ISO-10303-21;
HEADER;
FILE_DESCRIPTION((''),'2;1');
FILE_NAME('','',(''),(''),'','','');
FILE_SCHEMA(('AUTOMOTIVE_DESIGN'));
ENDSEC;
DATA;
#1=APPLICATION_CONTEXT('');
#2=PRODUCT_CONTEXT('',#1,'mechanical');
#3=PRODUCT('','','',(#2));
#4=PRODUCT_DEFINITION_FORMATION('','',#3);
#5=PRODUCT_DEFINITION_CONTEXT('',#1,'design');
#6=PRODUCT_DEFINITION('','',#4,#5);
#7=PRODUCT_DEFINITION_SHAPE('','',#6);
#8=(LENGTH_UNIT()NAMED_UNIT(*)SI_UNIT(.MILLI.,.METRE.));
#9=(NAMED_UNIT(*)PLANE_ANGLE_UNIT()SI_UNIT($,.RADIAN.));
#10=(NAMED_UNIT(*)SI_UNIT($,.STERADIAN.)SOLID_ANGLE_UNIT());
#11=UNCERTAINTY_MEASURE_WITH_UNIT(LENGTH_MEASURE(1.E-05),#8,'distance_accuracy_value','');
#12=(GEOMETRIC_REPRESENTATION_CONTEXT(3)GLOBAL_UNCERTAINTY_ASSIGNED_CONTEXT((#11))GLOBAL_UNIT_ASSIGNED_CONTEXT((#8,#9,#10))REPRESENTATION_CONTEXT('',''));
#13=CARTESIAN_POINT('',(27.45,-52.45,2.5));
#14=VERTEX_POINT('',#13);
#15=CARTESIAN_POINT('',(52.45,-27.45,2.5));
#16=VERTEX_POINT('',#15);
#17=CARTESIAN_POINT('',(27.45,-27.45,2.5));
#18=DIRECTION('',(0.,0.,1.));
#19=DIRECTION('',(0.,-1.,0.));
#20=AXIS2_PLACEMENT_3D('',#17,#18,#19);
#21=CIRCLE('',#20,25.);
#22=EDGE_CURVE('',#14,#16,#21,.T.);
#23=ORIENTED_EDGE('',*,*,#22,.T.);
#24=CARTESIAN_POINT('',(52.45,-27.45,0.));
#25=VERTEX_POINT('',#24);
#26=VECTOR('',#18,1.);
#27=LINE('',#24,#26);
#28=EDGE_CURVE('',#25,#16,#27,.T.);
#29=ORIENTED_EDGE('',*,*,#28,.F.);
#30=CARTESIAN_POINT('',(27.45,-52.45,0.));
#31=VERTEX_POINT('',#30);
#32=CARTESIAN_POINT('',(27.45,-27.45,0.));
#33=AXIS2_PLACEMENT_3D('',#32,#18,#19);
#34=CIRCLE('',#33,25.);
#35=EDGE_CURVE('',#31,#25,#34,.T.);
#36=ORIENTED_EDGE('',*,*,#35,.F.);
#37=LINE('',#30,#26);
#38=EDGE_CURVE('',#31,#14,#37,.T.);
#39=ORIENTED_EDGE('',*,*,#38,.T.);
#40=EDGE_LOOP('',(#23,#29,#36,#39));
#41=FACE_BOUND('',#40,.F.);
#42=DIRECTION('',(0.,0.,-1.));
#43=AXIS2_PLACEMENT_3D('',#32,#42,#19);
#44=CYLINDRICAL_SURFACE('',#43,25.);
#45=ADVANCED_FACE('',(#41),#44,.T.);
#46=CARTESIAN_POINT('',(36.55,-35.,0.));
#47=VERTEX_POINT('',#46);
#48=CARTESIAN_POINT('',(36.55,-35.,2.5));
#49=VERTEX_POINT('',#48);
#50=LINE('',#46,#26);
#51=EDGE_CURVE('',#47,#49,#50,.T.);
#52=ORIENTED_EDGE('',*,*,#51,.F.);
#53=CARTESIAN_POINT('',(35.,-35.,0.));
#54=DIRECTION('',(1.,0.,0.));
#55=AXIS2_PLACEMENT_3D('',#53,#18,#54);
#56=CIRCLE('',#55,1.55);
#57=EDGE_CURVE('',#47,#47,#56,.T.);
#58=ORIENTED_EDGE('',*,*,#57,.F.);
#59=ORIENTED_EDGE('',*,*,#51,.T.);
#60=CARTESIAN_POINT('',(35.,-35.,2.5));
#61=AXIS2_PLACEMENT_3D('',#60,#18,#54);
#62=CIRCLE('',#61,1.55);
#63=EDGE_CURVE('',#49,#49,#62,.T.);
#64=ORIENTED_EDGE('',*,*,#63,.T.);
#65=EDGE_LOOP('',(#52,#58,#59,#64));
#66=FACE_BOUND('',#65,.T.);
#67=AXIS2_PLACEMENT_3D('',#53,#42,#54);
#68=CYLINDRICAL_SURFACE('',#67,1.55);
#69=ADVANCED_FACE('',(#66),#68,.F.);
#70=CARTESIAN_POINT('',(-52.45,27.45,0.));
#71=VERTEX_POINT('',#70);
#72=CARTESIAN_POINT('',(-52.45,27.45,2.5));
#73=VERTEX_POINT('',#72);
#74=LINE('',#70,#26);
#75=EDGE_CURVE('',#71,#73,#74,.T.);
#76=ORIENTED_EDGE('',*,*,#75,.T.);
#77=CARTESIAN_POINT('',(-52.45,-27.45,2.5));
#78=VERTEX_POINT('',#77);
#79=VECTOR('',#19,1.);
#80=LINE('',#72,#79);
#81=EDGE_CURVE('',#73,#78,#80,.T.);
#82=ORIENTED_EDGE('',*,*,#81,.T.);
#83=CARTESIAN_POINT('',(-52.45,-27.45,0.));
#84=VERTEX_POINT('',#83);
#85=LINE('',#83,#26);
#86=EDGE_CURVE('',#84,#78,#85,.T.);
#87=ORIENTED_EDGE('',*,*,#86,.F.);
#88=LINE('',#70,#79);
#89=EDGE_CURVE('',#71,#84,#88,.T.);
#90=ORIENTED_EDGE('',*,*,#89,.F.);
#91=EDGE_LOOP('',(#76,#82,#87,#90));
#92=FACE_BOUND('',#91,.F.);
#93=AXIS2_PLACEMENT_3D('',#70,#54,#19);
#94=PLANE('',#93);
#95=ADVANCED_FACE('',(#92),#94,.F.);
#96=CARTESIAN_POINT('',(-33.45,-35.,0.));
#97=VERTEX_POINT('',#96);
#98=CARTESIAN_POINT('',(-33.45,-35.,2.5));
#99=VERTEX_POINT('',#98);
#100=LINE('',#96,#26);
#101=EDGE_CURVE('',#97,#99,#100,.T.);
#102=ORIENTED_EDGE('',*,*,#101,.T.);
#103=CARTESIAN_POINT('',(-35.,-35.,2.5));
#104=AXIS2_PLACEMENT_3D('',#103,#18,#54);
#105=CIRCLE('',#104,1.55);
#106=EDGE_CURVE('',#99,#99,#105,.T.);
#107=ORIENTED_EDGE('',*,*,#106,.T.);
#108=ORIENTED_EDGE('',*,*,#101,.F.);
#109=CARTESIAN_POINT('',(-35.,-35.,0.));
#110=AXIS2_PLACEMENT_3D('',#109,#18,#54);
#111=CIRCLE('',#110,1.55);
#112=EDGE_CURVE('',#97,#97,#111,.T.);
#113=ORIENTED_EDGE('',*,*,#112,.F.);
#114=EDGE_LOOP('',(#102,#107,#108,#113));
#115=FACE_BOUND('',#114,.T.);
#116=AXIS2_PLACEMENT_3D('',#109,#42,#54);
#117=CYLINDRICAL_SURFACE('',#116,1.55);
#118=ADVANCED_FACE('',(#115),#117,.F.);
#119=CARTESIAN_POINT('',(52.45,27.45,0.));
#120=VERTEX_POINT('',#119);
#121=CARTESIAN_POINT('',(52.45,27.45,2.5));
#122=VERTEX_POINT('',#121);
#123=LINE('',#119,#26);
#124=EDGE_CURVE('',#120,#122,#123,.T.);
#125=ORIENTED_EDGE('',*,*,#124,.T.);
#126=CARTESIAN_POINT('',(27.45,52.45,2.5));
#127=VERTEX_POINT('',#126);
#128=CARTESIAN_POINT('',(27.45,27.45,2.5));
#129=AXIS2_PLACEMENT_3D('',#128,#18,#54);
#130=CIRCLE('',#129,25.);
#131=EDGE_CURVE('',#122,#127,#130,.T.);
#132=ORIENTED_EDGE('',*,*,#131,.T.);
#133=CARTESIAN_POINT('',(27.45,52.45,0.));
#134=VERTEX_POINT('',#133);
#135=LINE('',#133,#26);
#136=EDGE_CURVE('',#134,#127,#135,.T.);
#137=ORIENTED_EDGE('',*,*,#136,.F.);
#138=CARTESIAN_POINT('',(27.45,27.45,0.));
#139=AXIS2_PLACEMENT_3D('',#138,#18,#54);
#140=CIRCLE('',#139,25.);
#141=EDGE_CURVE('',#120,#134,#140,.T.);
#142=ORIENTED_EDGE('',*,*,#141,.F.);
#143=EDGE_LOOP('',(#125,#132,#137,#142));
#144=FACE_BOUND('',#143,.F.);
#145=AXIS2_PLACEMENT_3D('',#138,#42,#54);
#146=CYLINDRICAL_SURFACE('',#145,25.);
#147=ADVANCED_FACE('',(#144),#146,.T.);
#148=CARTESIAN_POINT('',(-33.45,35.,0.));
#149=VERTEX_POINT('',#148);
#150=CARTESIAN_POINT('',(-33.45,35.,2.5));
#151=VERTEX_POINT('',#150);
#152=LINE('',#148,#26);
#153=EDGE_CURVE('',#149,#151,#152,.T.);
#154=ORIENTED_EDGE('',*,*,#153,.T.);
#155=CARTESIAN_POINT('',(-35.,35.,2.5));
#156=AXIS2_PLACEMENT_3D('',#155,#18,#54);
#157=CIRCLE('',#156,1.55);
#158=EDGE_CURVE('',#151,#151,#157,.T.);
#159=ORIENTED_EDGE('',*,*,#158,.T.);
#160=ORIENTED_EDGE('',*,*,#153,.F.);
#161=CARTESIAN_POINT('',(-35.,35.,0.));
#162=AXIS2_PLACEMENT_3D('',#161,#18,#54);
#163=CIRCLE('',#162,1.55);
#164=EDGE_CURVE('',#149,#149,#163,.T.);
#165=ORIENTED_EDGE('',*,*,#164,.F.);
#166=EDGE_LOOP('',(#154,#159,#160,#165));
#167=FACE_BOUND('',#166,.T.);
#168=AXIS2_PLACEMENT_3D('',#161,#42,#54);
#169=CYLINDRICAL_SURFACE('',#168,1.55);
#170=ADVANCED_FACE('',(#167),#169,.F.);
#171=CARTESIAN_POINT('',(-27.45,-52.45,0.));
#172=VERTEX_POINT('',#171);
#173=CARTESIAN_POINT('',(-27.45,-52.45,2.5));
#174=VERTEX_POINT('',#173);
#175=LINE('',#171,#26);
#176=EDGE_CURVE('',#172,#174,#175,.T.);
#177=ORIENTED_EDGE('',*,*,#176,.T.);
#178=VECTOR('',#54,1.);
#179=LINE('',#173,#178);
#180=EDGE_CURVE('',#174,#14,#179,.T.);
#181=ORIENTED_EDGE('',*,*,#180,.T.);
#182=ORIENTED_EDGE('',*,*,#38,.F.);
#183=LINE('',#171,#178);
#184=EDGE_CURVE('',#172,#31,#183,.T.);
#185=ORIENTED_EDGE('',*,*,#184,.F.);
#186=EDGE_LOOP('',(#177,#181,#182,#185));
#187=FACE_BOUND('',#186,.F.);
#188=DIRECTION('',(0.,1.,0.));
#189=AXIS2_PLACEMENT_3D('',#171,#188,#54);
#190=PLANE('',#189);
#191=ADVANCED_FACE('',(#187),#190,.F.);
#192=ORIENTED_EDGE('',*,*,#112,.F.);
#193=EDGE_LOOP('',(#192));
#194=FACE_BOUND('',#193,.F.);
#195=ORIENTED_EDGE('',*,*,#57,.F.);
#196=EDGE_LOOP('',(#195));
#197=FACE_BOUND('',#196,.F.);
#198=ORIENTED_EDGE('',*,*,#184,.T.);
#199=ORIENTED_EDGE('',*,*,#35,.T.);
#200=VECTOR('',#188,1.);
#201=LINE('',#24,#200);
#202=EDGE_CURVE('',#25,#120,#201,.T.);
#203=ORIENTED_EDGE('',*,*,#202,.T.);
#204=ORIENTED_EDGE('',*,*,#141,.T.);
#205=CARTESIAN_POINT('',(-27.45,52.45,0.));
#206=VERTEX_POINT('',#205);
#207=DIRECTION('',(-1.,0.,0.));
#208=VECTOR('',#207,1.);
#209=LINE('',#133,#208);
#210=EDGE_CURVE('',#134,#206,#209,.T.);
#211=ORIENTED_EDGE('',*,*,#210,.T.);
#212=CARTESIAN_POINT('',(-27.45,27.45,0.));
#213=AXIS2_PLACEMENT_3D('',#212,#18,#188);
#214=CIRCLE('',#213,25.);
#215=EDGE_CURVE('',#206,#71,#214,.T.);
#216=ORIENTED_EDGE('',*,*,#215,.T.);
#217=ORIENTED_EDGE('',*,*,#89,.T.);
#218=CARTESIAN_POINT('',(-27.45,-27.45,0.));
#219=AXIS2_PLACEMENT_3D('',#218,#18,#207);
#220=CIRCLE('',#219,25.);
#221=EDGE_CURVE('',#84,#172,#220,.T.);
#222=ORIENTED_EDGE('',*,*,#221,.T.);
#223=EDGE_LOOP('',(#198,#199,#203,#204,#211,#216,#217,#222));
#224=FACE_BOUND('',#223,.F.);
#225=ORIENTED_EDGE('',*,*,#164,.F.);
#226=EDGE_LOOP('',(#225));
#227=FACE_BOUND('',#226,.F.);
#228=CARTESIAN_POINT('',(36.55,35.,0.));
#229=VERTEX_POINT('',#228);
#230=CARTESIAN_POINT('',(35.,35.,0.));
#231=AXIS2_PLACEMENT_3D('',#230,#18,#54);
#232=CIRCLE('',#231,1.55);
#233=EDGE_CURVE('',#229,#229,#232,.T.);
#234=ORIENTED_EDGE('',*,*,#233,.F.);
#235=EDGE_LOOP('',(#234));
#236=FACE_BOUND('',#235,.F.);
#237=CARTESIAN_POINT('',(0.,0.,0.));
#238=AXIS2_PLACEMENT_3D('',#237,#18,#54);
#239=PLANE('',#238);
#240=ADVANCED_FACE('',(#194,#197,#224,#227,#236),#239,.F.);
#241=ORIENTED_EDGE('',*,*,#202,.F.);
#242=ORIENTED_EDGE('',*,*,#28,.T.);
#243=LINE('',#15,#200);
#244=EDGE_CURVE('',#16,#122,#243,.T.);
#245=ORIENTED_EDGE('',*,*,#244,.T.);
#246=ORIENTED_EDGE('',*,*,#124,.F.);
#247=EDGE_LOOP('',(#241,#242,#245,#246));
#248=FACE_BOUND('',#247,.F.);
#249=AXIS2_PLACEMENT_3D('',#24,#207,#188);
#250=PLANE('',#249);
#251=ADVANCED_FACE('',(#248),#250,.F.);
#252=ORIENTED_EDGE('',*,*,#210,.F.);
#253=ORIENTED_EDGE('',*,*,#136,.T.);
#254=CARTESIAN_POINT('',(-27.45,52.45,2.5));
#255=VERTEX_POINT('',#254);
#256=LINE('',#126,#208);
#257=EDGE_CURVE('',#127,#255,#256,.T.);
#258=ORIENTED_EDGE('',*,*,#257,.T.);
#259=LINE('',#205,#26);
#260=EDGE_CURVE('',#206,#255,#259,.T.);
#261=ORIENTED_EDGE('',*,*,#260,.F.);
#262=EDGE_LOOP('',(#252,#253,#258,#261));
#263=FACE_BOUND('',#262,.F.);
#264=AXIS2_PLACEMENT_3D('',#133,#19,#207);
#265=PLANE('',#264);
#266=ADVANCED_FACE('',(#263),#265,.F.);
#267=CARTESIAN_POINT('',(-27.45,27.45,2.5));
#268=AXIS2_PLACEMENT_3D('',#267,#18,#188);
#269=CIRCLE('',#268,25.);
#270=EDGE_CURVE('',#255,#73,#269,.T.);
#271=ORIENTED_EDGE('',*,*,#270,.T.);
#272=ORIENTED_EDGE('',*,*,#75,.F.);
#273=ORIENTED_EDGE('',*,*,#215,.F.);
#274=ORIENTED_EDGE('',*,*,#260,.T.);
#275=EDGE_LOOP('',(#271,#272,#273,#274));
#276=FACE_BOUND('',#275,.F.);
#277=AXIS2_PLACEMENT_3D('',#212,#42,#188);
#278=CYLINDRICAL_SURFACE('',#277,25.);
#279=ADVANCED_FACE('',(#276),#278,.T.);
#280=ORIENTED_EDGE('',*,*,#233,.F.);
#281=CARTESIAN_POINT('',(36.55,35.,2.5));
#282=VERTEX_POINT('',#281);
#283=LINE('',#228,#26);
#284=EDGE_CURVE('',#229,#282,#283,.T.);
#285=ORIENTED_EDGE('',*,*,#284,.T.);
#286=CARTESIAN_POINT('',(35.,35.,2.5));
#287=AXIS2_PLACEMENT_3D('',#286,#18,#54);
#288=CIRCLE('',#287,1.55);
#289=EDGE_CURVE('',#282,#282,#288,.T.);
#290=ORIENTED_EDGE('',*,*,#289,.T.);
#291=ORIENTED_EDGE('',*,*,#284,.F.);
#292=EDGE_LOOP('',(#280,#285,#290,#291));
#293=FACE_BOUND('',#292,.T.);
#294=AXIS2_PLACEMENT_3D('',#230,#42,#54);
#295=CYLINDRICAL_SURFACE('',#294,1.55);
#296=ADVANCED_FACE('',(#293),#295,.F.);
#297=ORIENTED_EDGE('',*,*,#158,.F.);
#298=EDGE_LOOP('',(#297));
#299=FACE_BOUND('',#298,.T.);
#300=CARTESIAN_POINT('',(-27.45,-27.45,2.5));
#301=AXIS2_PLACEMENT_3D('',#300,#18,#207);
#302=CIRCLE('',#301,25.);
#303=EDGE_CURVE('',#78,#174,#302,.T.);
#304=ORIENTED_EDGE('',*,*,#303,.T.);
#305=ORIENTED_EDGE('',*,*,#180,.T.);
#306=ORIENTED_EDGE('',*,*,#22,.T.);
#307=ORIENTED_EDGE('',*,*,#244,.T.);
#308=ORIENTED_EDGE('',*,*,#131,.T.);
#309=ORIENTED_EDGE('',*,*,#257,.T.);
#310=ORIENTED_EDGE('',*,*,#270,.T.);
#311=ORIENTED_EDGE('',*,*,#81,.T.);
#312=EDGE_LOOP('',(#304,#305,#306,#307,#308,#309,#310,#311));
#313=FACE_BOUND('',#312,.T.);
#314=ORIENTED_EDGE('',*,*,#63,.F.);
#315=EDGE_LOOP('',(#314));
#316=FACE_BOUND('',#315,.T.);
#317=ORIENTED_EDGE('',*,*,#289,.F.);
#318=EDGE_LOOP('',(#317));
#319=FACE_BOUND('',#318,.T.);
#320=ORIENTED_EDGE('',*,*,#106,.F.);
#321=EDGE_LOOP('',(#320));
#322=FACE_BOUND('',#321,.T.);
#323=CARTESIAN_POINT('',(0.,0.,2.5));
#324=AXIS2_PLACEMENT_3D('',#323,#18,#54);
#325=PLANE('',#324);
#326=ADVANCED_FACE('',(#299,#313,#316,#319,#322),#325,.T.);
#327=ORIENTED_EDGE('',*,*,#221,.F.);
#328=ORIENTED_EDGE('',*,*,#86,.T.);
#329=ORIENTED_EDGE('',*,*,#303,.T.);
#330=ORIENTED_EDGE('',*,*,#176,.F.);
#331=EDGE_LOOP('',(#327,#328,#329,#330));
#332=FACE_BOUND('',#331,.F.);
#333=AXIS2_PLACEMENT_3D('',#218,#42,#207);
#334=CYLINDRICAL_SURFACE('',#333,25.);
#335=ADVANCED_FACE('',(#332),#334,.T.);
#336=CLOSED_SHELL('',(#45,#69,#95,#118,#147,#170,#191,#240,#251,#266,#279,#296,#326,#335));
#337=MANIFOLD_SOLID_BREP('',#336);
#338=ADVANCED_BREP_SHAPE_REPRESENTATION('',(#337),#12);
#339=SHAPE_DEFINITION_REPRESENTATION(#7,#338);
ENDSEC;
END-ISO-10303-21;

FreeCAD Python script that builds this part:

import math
import FreeCAD as App
import Part
import Sketcher

V = App.Vector

doc = App.newDocument("Part")
body = doc.addObject("PartDesign::Body", "Body")

sketch1 = body.newObject("Sketcher::SketchObject", "Sketch")
sketch1.AttachmentSupport = (doc.getObject("XY_Plane"), [""])
sketch1.MapMode = "FlatFace"
sketch1.addGeometry([
    Part.ArcOfCircle(Part.Circle(V(-27.4, -27.4, 0), V(0, 0, 1), 25), math.radians(180), math.radians(270)),
    Part.LineSegment(V(-27.4, -52.5, 0), V(27.4, -52.5, 0)),
    Part.ArcOfCircle(Part.Circle(V(27.4, -27.4, 0), V(0, 0, 1), 25), math.radians(-90), math.radians(0)),
    Part.LineSegment(V(52.5, -27.4, 0), V(52.5, 27.4, 0)),
    Part.ArcOfCircle(Part.Circle(V(27.4, 27.4, 0), V(0, 0, 1), 25), math.radians(0), math.radians(90)),
    Part.LineSegment(V(27.4, 52.5, 0), V(-27.4, 52.5, 0)),
    Part.ArcOfCircle(Part.Circle(V(-27.4, 27.4, 0), V(0, 0, 1), 25), math.radians(90), math.radians(180)),
    Part.LineSegment(V(-52.5, 27.4, 0), V(-52.5, -27.4, 0)),
    Part.Circle(V(-35, -35, 0), V(0, 0, 1), 1.6),
    Part.Circle(V(35, -35, 0), V(0, 0, 1), 1.6),
    Part.Circle(V(-35, 35, 0), V(0, 0, 1), 1.6),
    Part.Circle(V(35, 35, 0), V(0, 0, 1), 1.6),
], False)
sketch1.addConstraint([
    Sketcher.Constraint("Tangent", 0, 2, 1, 1),
    Sketcher.Constraint("Tangent", 1, 2, 2, 1),
    Sketcher.Constraint("Tangent", 2, 2, 3, 1),
    Sketcher.Constraint("Tangent", 3, 2, 4, 1),
    Sketcher.Constraint("Tangent", 4, 2, 5, 1),
    Sketcher.Constraint("Tangent", 5, 2, 6, 1),
    Sketcher.Constraint("Tangent", 6, 2, 7, 1),
    Sketcher.Constraint("Tangent", 7, 2, 0, 1),
    Sketcher.Constraint("Horizontal", 1),
    Sketcher.Constraint("Vertical", 3),
    Sketcher.Constraint("Horizontal", 5),
    Sketcher.Constraint("Vertical", 7),
    Sketcher.Constraint("Equal", 0, 2),
    Sketcher.Constraint("Equal", 2, 4),
    Sketcher.Constraint("Equal", 4, 6),
    Sketcher.Constraint("Equal", 8, 9),
    Sketcher.Constraint("Equal", 9, 10),
    Sketcher.Constraint("Equal", 10, 11),
    Sketcher.Constraint("Symmetric", 0, 3, 4, 3, -1, 1),
    Sketcher.Constraint("Symmetric", 9, 3, 10, 3, -1, 1),
    Sketcher.Constraint("Symmetric", 8, 3, 11, 3, -1, 1),
    Sketcher.Constraint("Symmetric", 8, 3, 9, 3, -2),
    Sketcher.Constraint("Equal", 5, 3),
    Sketcher.Constraint("Radius", 0, 25.0),
    Sketcher.Constraint("Diameter", 8, 3.1),
    Sketcher.Constraint("DistanceX", 8, 3, 9, 3, 70.0),
    Sketcher.Constraint("DistanceY", 8, 3, 10, 3, 70.0),
    Sketcher.Constraint("DistanceX", 1, 1, 1, 2, 54.9),
])
pad1 = body.newObject("PartDesign::Pad", "Pad")
pad1.Profile = sketch1
pad1.Length = 2.5

doc.recompute()
